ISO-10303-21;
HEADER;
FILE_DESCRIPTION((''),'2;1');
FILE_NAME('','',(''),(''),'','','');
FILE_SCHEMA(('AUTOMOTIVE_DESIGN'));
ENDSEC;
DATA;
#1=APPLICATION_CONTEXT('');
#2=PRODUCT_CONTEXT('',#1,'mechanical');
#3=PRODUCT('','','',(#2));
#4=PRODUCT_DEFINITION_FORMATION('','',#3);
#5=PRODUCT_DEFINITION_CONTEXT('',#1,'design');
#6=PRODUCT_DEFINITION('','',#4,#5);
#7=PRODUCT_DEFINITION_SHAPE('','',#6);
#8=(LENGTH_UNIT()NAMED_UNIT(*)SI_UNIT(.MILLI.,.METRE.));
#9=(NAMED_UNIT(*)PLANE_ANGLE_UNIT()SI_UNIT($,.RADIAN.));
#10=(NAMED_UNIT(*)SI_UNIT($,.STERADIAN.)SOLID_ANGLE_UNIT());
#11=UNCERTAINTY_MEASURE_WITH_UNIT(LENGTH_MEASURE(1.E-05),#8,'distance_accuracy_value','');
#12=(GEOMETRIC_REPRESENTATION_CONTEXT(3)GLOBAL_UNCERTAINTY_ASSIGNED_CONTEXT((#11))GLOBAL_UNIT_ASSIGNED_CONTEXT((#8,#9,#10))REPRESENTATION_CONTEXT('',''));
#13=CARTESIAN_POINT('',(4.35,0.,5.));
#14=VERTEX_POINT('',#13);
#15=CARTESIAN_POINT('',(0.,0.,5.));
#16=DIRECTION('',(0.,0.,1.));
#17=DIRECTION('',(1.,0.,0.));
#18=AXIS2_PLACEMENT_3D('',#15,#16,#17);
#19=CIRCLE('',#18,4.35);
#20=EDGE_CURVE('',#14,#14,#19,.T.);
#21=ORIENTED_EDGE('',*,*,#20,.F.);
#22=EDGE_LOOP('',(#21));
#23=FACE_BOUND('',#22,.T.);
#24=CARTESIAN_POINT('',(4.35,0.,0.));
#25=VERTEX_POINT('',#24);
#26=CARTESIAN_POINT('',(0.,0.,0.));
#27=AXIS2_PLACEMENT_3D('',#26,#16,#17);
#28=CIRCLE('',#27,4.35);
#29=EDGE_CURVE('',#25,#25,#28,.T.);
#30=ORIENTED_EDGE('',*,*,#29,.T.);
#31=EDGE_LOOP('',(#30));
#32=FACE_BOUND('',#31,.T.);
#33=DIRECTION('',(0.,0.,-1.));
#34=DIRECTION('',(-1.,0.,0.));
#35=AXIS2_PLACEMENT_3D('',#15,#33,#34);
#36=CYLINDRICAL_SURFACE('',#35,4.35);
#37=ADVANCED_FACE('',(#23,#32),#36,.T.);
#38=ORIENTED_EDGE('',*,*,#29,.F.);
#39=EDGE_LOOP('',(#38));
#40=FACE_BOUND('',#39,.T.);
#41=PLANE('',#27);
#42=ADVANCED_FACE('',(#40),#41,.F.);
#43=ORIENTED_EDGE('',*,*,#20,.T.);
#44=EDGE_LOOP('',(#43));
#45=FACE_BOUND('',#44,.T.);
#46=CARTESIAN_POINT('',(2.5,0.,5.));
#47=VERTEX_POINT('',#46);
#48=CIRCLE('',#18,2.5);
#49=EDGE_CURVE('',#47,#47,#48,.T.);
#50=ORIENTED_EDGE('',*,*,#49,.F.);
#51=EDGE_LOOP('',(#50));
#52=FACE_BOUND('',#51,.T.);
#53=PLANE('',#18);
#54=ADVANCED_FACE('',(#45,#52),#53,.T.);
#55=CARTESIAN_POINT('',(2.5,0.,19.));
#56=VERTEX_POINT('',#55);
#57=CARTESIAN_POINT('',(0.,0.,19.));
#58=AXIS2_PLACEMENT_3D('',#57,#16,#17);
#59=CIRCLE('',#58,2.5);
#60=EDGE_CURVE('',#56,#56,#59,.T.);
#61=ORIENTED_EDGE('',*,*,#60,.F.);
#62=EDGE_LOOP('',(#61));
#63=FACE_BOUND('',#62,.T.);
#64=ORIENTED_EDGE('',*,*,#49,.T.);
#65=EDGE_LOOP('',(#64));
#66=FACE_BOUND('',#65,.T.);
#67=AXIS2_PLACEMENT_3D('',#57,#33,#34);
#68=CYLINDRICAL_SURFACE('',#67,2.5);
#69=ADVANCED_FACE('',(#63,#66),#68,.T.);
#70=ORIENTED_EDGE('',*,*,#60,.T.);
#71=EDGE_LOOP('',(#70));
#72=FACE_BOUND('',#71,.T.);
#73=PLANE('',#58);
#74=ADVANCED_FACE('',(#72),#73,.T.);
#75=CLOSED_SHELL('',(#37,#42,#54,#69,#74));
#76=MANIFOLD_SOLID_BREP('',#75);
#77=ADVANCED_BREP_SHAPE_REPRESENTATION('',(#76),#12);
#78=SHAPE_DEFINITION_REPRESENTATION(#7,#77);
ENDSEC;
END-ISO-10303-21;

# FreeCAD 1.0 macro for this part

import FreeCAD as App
import Part
import Sketcher

V = App.Vector
Q = App.Units.Quantity

doc = App.newDocument("Part")
body = doc.addObject("PartDesign::Body", "Body")

# Sketch on XY plane
sketch1 = body.newObject("Sketcher::SketchObject", "Sketch")
sketch1.AttachmentSupport = (doc.getObject("XY_Plane"), [""])
sketch1.MapMode = "FlatFace"
sketch1.addGeometry(Part.Circle(V(0, 0, 0), V(0, 0, 1), 4.3), False)
sketch1.addConstraint([
    Sketcher.Constraint("Coincident", 0, 3, -1, 1),
    Sketcher.Constraint("Diameter", 0, Q("8.7 mm")),
])
pad1 = body.newObject("PartDesign::Pad", "Pad")
pad1.Profile = sketch1
pad1.Length = 5

# Sketch on XY plane
sketch2 = body.newObject("Sketcher::SketchObject", "Sketch001")
sketch2.AttachmentSupport = (doc.getObject("XY_Plane"), [""])
sketch2.MapMode = "FlatFace"
sketch2.AttachmentOffset = App.Placement(V(0, 0, 5), App.Rotation())
sketch2.addGeometry(Part.Circle(V(0, 0, 0), V(0, 0, 1), 2.5), False)
sketch2.addConstraint([
    Sketcher.Constraint("Coincident", 0, 3, -1, 1),
    Sketcher.Constraint("Diameter", 0, Q("5 mm")),
])
pad2 = body.newObject("PartDesign::Pad", "Pad001")
pad2.Profile = sketch2
pad2.Length = 14

doc.recompute()
